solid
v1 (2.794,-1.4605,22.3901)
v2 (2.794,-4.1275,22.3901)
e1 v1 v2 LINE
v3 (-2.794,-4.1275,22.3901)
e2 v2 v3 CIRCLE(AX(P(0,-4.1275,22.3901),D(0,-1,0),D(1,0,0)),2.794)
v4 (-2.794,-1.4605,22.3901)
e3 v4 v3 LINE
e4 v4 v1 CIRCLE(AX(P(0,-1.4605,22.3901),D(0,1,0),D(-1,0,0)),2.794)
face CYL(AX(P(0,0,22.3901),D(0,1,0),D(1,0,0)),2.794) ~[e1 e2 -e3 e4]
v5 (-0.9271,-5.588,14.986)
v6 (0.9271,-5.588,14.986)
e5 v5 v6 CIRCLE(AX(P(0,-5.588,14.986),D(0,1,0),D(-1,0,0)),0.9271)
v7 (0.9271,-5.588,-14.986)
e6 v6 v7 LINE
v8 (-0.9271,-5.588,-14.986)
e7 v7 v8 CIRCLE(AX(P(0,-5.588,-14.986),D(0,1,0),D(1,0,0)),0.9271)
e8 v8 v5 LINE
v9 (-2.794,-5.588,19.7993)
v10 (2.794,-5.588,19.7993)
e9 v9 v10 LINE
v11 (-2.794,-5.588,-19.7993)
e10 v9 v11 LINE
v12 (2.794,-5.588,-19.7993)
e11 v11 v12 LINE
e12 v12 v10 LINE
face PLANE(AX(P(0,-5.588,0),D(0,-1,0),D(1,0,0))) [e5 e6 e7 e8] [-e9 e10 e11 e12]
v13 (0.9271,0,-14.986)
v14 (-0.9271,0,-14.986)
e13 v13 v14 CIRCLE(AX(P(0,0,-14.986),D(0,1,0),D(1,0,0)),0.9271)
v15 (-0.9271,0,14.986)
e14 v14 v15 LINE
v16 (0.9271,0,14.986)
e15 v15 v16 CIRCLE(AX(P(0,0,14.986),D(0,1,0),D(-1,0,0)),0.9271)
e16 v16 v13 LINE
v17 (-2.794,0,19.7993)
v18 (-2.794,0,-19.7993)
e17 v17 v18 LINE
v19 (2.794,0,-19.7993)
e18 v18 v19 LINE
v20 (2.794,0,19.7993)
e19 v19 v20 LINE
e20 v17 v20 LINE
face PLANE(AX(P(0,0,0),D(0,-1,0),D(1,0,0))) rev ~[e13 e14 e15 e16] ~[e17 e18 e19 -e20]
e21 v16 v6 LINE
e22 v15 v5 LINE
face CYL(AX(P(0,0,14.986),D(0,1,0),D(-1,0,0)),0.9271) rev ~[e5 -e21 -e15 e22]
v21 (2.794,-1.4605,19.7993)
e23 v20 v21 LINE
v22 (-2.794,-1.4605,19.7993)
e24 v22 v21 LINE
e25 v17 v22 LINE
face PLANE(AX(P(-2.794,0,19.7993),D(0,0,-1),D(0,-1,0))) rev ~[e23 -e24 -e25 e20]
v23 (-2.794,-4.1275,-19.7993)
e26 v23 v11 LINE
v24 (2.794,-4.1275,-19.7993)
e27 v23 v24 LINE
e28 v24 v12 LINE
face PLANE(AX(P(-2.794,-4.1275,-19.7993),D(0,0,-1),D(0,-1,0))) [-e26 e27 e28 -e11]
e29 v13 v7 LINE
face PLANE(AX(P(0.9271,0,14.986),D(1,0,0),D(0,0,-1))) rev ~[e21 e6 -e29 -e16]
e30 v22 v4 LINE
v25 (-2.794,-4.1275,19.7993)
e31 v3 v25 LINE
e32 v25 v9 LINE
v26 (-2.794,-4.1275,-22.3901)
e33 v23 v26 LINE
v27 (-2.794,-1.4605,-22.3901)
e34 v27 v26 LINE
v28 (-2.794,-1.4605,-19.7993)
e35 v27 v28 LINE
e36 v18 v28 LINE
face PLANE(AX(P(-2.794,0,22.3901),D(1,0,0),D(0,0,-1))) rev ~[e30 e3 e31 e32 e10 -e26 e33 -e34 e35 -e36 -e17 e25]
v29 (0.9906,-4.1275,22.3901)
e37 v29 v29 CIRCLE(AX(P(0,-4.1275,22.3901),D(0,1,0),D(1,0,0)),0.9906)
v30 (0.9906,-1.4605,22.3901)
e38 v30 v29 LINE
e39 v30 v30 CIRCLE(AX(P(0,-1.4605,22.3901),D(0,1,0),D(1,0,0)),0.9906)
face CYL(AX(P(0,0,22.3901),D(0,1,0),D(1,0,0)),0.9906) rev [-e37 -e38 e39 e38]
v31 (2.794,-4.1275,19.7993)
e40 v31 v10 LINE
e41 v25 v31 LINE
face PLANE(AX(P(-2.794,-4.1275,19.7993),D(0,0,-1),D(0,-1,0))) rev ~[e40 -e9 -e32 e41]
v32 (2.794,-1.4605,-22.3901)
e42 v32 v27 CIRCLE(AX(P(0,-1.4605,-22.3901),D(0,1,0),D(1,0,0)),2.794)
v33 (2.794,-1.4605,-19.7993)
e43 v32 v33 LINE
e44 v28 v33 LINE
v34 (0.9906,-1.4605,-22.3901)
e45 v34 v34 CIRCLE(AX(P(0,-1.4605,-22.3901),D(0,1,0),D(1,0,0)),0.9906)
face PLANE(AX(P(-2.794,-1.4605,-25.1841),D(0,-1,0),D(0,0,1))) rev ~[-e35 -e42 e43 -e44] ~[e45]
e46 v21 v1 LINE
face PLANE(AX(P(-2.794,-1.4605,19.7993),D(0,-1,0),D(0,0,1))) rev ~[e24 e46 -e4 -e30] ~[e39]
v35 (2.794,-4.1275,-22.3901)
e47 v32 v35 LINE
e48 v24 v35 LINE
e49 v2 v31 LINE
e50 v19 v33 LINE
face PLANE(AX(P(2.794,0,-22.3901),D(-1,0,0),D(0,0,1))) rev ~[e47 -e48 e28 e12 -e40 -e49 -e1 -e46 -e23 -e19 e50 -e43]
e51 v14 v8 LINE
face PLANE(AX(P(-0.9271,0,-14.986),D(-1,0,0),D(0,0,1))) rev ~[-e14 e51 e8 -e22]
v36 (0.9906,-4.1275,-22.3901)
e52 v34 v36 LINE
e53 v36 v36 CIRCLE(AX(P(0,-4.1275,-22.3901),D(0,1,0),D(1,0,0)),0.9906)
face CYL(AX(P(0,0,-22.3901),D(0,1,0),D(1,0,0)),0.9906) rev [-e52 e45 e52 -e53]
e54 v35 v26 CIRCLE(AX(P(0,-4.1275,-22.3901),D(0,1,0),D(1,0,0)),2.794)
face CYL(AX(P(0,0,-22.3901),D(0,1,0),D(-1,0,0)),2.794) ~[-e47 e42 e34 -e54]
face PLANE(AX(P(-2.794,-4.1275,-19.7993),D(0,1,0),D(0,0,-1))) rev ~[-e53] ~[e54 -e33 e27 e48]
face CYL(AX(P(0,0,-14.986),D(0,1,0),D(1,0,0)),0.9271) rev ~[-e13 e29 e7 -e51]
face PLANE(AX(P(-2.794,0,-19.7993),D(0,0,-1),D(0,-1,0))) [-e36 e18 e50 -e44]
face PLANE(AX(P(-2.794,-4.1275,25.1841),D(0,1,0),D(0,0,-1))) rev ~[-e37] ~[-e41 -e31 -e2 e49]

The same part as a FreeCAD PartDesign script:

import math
import FreeCAD as App
import Part
import Sketcher
Q = App.Units.Quantity


def add_polygon(sketch, points):
    """Adds a closed chain of lines whose ends are joined by coincident constraints."""
    first, n = sketch.GeometryCount, len(points)
    for a, b in zip(points, points[1:] + points[:1]):
        sketch.addGeometry(Part.LineSegment(App.Vector(*a, 0), App.Vector(*b, 0)), False)
    for i in range(n):
        sketch.addConstraint(Sketcher.Constraint("Coincident", first + i, 2, first + (i + 1) % n, 1))

doc = App.newDocument("Part")
body = doc.addObject("PartDesign::Body", "Body")

# Sketch on XZ plane
sketch1 = body.newObject("Sketcher::SketchObject", "Sketch")
sketch1.AttachmentSupport = (doc.getObject("XZ_Plane"), [""])
sketch1.MapMode = "FlatFace"
sketch1.addGeometry([
    Part.LineSegment(App.Vector(-2.8, 22.4, 0), App.Vector(-2.8, -22.4, 0)),  # 0
    Part.ArcOfCircle(Part.Circle(App.Vector(0, -22.4, 0), App.Vector(0, 0, 1), 2.8), math.radians(180), math.radians(360)),  # 1
    Part.LineSegment(App.Vector(2.8, -22.4, 0), App.Vector(2.8, 22.4, 0)),  # 2
    Part.ArcOfCircle(Part.Circle(App.Vector(0, 22.4, 0), App.Vector(0, 0, 1), 2.8), math.radians(0), math.radians(180)),  # 3
    Part.Circle(App.Vector(0, -22.4, 0), App.Vector(0, 0, 1), 1),  # 4
    Part.LineSegment(App.Vector(-0.9, -15, 0), App.Vector(-0.9, 15, 0)),  # 5
    Part.ArcOfCircle(Part.Circle(App.Vector(0, 15, 0), App.Vector(0, 0, 1), 0.9), math.radians(0), math.radians(180)),  # 6
    Part.LineSegment(App.Vector(0.9, 15, 0), App.Vector(0.9, -15, 0)),  # 7
    Part.ArcOfCircle(Part.Circle(App.Vector(0, -15, 0), App.Vector(0, 0, 1), 0.9), math.radians(180), math.radians(360)),  # 8
    Part.Circle(App.Vector(0, 22.4, 0), App.Vector(0, 0, 1), 1),  # 9
], False)
sketch1.addConstraint([
    Sketcher.Constraint("Tangent", 0, 2, 1, 1),
    Sketcher.Constraint("Tangent", 1, 2, 2, 1),
    Sketcher.Constraint("Tangent", 2, 2, 3, 1),
    Sketcher.Constraint("Tangent", 3, 2, 0, 1),
    Sketcher.Constraint("Tangent", 5, 2, 6, 2),
    Sketcher.Constraint("Tangent", 6, 1, 7, 1),
    Sketcher.Constraint("Tangent", 7, 2, 8, 2),
    Sketcher.Constraint("Tangent", 8, 1, 5, 1),
    Sketcher.Constraint("Vertical", 0),
    Sketcher.Constraint("Vertical", 2),
    Sketcher.Constraint("Vertical", 5),
    Sketcher.Constraint("Vertical", 7),
    Sketcher.Constraint("Coincident", 4, 3, 1, 3),
    Sketcher.Constraint("Coincident", 9, 3, 3, 3),
    Sketcher.Constraint("Equal", 4, 9),
    Sketcher.Constraint("Symmetric", 1, 3, 3, 3, -1, 1),
    Sketcher.Constraint("Symmetric", 6, 3, 8, 3, -1, 1),
    Sketcher.Constraint("Radius", 1, Q("0.11 in")),
    Sketcher.Constraint("Diameter", 4, Q("0.078 in")),
    Sketcher.Constraint("DistanceY", 5, 1, 5, 2, Q("1.18 in")),
    Sketcher.Constraint("Radius", 6, Q("0.0365 in")),
    Sketcher.Constraint("DistanceY", 0, 2, 0, 1, Q("1.763 in")),
])
pad1 = body.newObject("PartDesign::Pad", "Pad")
pad1.Profile = sketch1
pad1.Length = Q("0.22 in")

# Sketch on YZ plane
sketch2 = body.newObject("Sketcher::SketchObject", "Sketch001")
sketch2.AttachmentSupport = (doc.getObject("YZ_Plane"), [""])
sketch2.MapMode = "FlatFace"
sketch2.AttachmentOffset = App.Placement(App.Vector(0, 0, -0.11 * 25.4), App.Rotation())
add_polygon(sketch2, [(0, 19.8), (-1.5, 19.8), (-1.5, 25.2), (0, 25.2)])  # lines 0-3
add_polygon(sketch2, [(-4.1, 25.2), (-4.1, 19.8), (-5.6, 19.8), (-5.6, 25.2)])  # lines 4-7
add_polygon(sketch2, [(0, -25.2), (-1.5, -25.2), (-1.5, -19.8), (0, -19.8)])  # lines 8-11
add_polygon(sketch2, [(-4.1, -19.8), (-4.1, -25.2), (-5.6, -25.2), (-5.6, -19.8)])  # lines 12-15
sketch2.addConstraint([
    Sketcher.Constraint("Horizontal", 0),
    Sketcher.Constraint("Vertical", 1),
    Sketcher.Constraint("Horizontal", 2),
    Sketcher.Constraint("Vertical", 3),
    Sketcher.Constraint("Vertical", 4),
    Sketcher.Constraint("Horizontal", 5),
    Sketcher.Constraint("Vertical", 6),
    Sketcher.Constraint("Horizontal", 7),
    Sketcher.Constraint("Horizontal", 8),
    Sketcher.Constraint("Vertical", 9),
    Sketcher.Constraint("Horizontal", 10),
    Sketcher.Constraint("Vertical", 11),
    Sketcher.Constraint("Vertical", 12),
    Sketcher.Constraint("Horizontal", 13),
    Sketcher.Constraint("Vertical", 14),
    Sketcher.Constraint("Horizontal", 15),
    Sketcher.Constraint("Symmetric", 3, 2, 10, 2, -1, 1),
    Sketcher.Constraint("Symmetric", 1, 2, 8, 2, -1),
    Sketcher.Constraint("Symmetric", 7, 2, 12, 2, -1),
    Sketcher.Constraint("Symmetric", 5, 2, 14, 2, -1),
    Sketcher.Constraint("PointOnObject", 2, 2, -2),
    Sketcher.Constraint("Horizontal", 3, 2, 4, 2),
    Sketcher.Constraint("Horizontal", 2, 2, 6, 2),
    Sketcher.Constraint("Equal", 2, 5),
    Sketcher.Constraint("DistanceY", 1, 1, 1, 2, Q("0.212 in")),
    Sketcher.Constraint("DistanceX", 5, 2, -1, 1, Q("0.22 in")),
    Sketcher.Constraint("DistanceX", 0, 2, 0, 1, Q("0.0575 in")),
    Sketcher.Constraint("DistanceY", 8, 2, 0, 2, Q("1.771 in")),
])
pocket1 = body.newObject("PartDesign::Pocket", "Pocket")
pocket1.Profile = sketch2
pocket1.Type = "ThroughAll"
pocket1.Reversed = True

doc.recompute()
